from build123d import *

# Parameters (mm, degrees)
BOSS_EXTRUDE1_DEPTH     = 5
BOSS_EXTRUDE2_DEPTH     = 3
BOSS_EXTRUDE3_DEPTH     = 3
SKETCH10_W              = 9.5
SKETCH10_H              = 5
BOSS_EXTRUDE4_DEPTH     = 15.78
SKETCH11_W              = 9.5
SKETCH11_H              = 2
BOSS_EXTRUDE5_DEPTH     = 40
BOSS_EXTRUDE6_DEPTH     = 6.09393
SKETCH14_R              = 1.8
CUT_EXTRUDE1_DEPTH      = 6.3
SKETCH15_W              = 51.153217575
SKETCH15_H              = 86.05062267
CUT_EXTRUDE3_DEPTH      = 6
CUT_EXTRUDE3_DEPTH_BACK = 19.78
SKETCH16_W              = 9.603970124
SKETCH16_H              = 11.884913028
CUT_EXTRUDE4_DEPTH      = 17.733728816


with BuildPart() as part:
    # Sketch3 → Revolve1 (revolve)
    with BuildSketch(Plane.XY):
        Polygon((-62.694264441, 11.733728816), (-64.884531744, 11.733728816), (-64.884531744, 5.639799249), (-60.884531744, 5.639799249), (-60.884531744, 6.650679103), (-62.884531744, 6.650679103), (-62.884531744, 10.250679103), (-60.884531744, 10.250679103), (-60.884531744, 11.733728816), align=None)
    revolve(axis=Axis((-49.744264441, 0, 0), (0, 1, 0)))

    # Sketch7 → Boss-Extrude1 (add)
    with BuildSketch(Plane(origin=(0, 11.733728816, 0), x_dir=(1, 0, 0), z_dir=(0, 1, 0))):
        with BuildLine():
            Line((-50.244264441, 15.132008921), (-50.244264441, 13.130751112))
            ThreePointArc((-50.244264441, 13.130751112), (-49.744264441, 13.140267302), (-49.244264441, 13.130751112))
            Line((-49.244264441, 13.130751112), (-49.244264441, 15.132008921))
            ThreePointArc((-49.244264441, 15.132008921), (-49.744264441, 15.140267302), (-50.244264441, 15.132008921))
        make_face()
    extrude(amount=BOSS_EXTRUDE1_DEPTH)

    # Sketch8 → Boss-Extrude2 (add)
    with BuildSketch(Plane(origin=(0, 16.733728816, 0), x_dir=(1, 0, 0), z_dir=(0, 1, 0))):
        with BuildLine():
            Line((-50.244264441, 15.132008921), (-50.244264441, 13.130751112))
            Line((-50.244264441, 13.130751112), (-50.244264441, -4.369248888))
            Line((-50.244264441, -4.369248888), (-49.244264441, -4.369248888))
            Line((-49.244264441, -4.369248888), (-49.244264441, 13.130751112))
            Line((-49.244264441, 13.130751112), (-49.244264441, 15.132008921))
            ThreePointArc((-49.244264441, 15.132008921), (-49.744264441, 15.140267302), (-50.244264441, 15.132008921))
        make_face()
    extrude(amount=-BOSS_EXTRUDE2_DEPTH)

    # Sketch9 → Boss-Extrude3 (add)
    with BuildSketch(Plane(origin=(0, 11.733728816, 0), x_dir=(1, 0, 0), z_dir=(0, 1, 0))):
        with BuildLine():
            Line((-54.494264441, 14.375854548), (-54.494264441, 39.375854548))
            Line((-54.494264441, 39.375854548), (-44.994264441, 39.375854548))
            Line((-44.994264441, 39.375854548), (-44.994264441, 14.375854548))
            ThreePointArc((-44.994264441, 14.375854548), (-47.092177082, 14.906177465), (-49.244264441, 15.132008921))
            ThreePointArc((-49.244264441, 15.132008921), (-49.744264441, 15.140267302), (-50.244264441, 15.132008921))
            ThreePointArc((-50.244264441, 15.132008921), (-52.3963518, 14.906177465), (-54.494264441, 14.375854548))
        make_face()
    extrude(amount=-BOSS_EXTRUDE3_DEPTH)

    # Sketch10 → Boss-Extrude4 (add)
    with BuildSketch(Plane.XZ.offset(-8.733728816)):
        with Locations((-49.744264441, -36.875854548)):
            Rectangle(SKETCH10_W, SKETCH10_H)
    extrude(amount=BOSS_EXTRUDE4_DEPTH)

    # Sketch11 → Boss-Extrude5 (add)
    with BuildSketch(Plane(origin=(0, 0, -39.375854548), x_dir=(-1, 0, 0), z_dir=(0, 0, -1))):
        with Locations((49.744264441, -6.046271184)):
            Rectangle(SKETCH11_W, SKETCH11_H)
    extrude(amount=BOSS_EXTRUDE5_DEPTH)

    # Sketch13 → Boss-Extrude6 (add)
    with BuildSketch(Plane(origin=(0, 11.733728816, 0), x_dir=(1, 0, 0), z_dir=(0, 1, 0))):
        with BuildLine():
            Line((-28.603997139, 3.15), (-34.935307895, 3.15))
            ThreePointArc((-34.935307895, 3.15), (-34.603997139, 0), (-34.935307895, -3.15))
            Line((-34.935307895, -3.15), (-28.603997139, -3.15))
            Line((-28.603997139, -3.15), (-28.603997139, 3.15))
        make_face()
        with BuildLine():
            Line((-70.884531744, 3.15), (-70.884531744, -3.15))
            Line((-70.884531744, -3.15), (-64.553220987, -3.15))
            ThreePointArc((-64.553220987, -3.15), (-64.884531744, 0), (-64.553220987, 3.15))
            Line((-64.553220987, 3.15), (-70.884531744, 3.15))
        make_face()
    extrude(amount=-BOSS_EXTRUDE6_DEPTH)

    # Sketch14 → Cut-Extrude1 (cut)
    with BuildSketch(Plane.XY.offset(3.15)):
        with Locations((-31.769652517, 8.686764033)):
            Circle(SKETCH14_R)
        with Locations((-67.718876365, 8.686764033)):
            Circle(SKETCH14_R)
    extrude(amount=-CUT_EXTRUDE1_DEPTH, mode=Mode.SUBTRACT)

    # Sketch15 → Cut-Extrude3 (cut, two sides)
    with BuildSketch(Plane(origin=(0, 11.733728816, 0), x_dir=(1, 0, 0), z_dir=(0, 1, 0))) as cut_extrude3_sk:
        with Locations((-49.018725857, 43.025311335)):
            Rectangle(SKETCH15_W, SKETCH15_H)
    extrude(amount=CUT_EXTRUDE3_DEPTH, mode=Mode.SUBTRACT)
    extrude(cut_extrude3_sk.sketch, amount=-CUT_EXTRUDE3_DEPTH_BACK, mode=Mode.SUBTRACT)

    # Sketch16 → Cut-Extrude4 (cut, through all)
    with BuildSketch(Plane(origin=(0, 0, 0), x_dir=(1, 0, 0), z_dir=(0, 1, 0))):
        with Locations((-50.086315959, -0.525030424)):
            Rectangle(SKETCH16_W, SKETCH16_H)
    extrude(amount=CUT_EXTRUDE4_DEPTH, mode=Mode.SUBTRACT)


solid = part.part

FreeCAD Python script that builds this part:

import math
import FreeCAD as App
import Part
import Sketcher
Q = App.Units.Quantity


def add_polygon(sketch, points):
    """Adds a closed chain of lines whose ends are joined by coincident constraints."""
    first, n = sketch.GeometryCount, len(points)
    for a, b in zip(points, points[1:] + points[:1]):
        sketch.addGeometry(Part.LineSegment(App.Vector(*a, 0), App.Vector(*b, 0)), False)
    for i in range(n):
        sketch.addConstraint(Sketcher.Constraint("Coincident", first + i, 2, first + (i + 1) % n, 1))

doc = App.newDocument("Part")
body = doc.addObject("PartDesign::Body", "Body")
body.AllowCompound = True

# Sketch on XY plane
sketch1 = body.newObject("Sketcher::SketchObject", "Sketch")
sketch1.AttachmentSupport = (doc.getObject("XY_Plane"), [""])
sketch1.MapMode = "FlatFace"
add_polygon(sketch1, [(-64.9, 11.7), (-64.9, 5.6), (-60.9, 5.6), (-60.9, 6.7), (-62.9, 6.7), (-62.9, 10.3), (-60.9, 10.3), (-60.9, 11.7)])  # lines 0-7
sketch1.addGeometry(Part.LineSegment(App.Vector(-49.7, 5.6, 0), App.Vector(-49.7, 11.7, 0)), True)  # axis
sketch1.addConstraint([
    Sketcher.Constraint("Vertical", 0),
    Sketcher.Constraint("Horizontal", 1),
    Sketcher.Constraint("Vertical", 2),
    Sketcher.Constraint("Horizontal", 3),
    Sketcher.Constraint("Vertical", 4),
    Sketcher.Constraint("Horizontal", 5),
    Sketcher.Constraint("Vertical", 6),
    Sketcher.Constraint("Horizontal", 7),
    Sketcher.Constraint("Vertical", 8),
    Sketcher.Constraint("Horizontal", 1, 2, 8, 1),
    Sketcher.Constraint("Horizontal", 7, 2, 8, 2),
    Sketcher.Constraint("Vertical", 2, 2, 5, 2),
    Sketcher.Constraint("DistanceX", 1, 1, 1, 2, Q("4 mm")),
    Sketcher.Constraint("DistanceX", 3, 2, 3, 1, Q("2 mm")),
    Sketcher.Constraint("DistanceY", 4, 1, 4, 2, Q("3.6 mm")),
    Sketcher.Constraint("DistanceY", 0, 2, 0, 1, Q("6.09393 mm")),
    Sketcher.Constraint("DistanceY", 2, 1, 2, 2, Q("1.01088 mm")),
    Sketcher.Constraint("DistanceY", -1, 1, 0, 2, Q("5.639799 mm")),
    Sketcher.Constraint("DistanceX", 0, 2, -1, 1, Q("64.884532 mm")),
    Sketcher.Constraint("DistanceX", 8, 1, -1, 1, Q("49.744264 mm")),
])
revolution = body.newObject("PartDesign::Revolution", "Revolution")
revolution.Profile = sketch1
revolution.ReferenceAxis = (sketch1, ["Axis0"])
revolution.Angle = 360

# Sketch on XZ plane
sketch2 = body.newObject("Sketcher::SketchObject", "Sketch001")
sketch2.AttachmentSupport = (doc.getObject("XZ_Plane"), [""])
sketch2.MapMode = "FlatFace"
sketch2.AttachmentOffset = App.Placement(App.Vector(0, 0, -11.733729), App.Rotation())
sketch2.addGeometry([
    Part.LineSegment(App.Vector(-50.2, -15.1, 0), App.Vector(-50.2, -13.1, 0)),
    Part.ArcOfCircle(Part.Circle(App.Vector(-49.7, 0, 0), App.Vector(0, 0, 1), 13.1), math.radians(-92.18), math.radians(-87.82)),
    Part.LineSegment(App.Vector(-49.2, -13.1, 0), App.Vector(-49.2, -15.1, 0)),
    Part.ArcOfCircle(Part.Circle(App.Vector(-49.7, 0, 0), App.Vector(0, 0, 1), 15.1), math.radians(-91.89), math.radians(-88.11)),
], False)
sketch2.addConstraint([
    Sketcher.Constraint("Coincident", 0, 2, 1, 1),
    Sketcher.Constraint("Coincident", 1, 2, 2, 1),
    Sketcher.Constraint("Coincident", 2, 2, 3, 2),
    Sketcher.Constraint("Coincident", 3, 1, 0, 1),
    Sketcher.Constraint("Vertical", 0),
    Sketcher.Constraint("Vertical", 2),
    Sketcher.Constraint("Coincident", 3, 3, 1, 3),
    Sketcher.Constraint("PointOnObject", 1, 3, -1),
    Sketcher.Constraint("Horizontal", 0, 2, 1, 2),
    Sketcher.Constraint("DistanceX", 0, 2, 1, 2, Q("1 mm")),
    Sketcher.Constraint("Radius", 1, Q("13.140267 mm")),
    Sketcher.Constraint("Radius", 3, Q("15.140268 mm")),
    Sketcher.Constraint("DistanceX", 1, 3, -1, 1, Q("49.744264 mm")),
])
pad1 = body.newObject("PartDesign::Pad", "Pad")
pad1.Profile = sketch2
pad1.Length = 5
pad1.Reversed = True

# Sketch on XZ plane
sketch3 = body.newObject("Sketcher::SketchObject", "Sketch002")
sketch3.AttachmentSupport = (doc.getObject("XZ_Plane"), [""])
sketch3.MapMode = "FlatFace"
sketch3.AttachmentOffset = App.Placement(App.Vector(0, 0, -16.733729), App.Rotation())
sketch3.addGeometry([
    Part.LineSegment(App.Vector(-50.2, -15.1, 0), App.Vector(-50.2, 4.4, 0)),
    Part.LineSegment(App.Vector(-50.2, 4.4, 0), App.Vector(-49.2, 4.4, 0)),
    Part.LineSegment(App.Vector(-49.2, 4.4, 0), App.Vector(-49.2, -15.1, 0)),
    Part.ArcOfCircle(Part.Circle(App.Vector(-49.7, 0, 0), App.Vector(0, 0, 1), 15.1), math.radians(-91.89), math.radians(-88.11)),
], False)
sketch3.addConstraint([
    Sketcher.Constraint("Coincident", 0, 2, 1, 1),
    Sketcher.Constraint("Coincident", 1, 2, 2, 1),
    Sketcher.Constraint("Coincident", 2, 2, 3, 2),
    Sketcher.Constraint("Coincident", 3, 1, 0, 1),
    Sketcher.Constraint("Vertical", 0),
    Sketcher.Constraint("Horizontal", 1),
    Sketcher.Constraint("Vertical", 2),
    Sketcher.Constraint("PointOnObject", 3, 3, -1),
    Sketcher.Constraint("Horizontal", 2, 2, 3, 1),
    Sketcher.Constraint("DistanceX", 1, 1, 1, 2, Q("1 mm")),
    Sketcher.Constraint("Radius", 3, Q("15.140268 mm")),
    Sketcher.Constraint("DistanceY", 0, 1, 0, 2, Q("19.501258 mm")),
    Sketcher.Constraint("DistanceX", 3, 3, -1, 1, Q("49.744264 mm")),
])
pad2 = body.newObject("PartDesign::Pad", "Pad001")
pad2.Profile = sketch3
pad2.Length = 3

# Sketch on XZ plane
sketch4 = body.newObject("Sketcher::SketchObject", "Sketch003")
sketch4.AttachmentSupport = (doc.getObject("XZ_Plane"), [""])
sketch4.MapMode = "FlatFace"
sketch4.AttachmentOffset = App.Placement(App.Vector(0, 0, -11.733729), App.Rotation())
sketch4.addGeometry([
    Part.LineSegment(App.Vector(-54.5, -39.4, 0), App.Vector(-54.5, -14.4, 0)),  # 0
    Part.ArcOfCircle(Part.Circle(App.Vector(-49.7, 0, 0), App.Vector(0, 0, 1), 15.1), math.radians(-108.28), math.radians(-91.89)),  # 1
    Part.ArcOfCircle(Part.Circle(App.Vector(-49.7, 0, 0), App.Vector(0, 0, 1), 15.1), math.radians(-91.89), math.radians(-88.11)),  # 2
    Part.ArcOfCircle(Part.Circle(App.Vector(-49.7, 0, 0), App.Vector(0, 0, 1), 15.1), math.radians(-88.11), math.radians(-71.72)),  # 3
    Part.LineSegment(App.Vector(-45, -14.4, 0), App.Vector(-45, -39.4, 0)),  # 4
    Part.LineSegment(App.Vector(-45, -39.4, 0), App.Vector(-54.5, -39.4, 0)),  # 5
], False)
sketch4.addConstraint([
    Sketcher.Constraint("Coincident", 0, 2, 1, 1),
    Sketcher.Constraint("Tangent", 1, 2, 2, 1),
    Sketcher.Constraint("Tangent", 2, 2, 3, 1),
    Sketcher.Constraint("Coincident", 3, 2, 4, 1),
    Sketcher.Constraint("Coincident", 4, 2, 5, 1),
    Sketcher.Constraint("Coincident", 5, 2, 0, 1),
    Sketcher.Constraint("Vertical", 0),
    Sketcher.Constraint("Vertical", 4),
    Sketcher.Constraint("Horizontal", 5),
    Sketcher.Constraint("Coincident", 3, 3, 1, 3),
    Sketcher.Constraint("PointOnObject", 1, 3, -1),
    Sketcher.Constraint("Horizontal", 1, 2, 2, 2),
    Sketcher.Constraint("Horizontal", 0, 2, 3, 2),
    Sketcher.Constraint("DistanceY", 0, 1, 0, 2, Q("25 mm")),
    Sketcher.Constraint("DistanceX", 5, 2, 5, 1, Q("9.5 mm")),
    Sketcher.Constraint("DistanceX", 1, 2, 2, 2, Q("1 mm")),
    Sketcher.Constraint("Radius", 1, Q("15.140267 mm")),
    Sketcher.Constraint("DistanceX", 1, 3, -1, 1, Q("49.744264 mm")),
])
pad3 = body.newObject("PartDesign::Pad", "Pad002")
pad3.Profile = sketch4
pad3.Length = 3

# Sketch on XZ plane
sketch5 = body.newObject("Sketcher::SketchObject", "Sketch004")
sketch5.AttachmentSupport = (doc.getObject("XZ_Plane"), [""])
sketch5.MapMode = "FlatFace"
sketch5.AttachmentOffset = App.Placement(App.Vector(0, 0, -8.733729), App.Rotation())
add_polygon(sketch5, [(-54, -34), (-54, -39), (-45, -39), (-45, -34)])  # lines 0-3
sketch5.addConstraint([
    Sketcher.Constraint("Vertical", 0),
    Sketcher.Constraint("Horizontal", 1),
    Sketcher.Constraint("Vertical", 2),
    Sketcher.Constraint("Horizontal", 3),
    Sketcher.Constraint("DistanceY", 0, 2, 0, 1, Q("5 mm")),
    Sketcher.Constraint("DistanceX", 1, 1, 1, 2, Q("9.5 mm")),
    Sketcher.Constraint("DistanceX", 0, 2, -1, 1, Q("54.494264 mm")),
    Sketcher.Constraint("DistanceY", 0, 2, -1, 1, Q("39.375855 mm")),
])
pad4 = body.newObject("PartDesign::Pad", "Pad003")
pad4.Profile = sketch5
pad4.Length = 15.78

# Sketch on XY plane
sketch6 = body.newObject("Sketcher::SketchObject", "Sketch005")
sketch6.AttachmentSupport = (doc.getObject("XY_Plane"), [""])
sketch6.MapMode = "FlatFace"
sketch6.AttachmentOffset = App.Placement(App.Vector(0, 0, -39.375855), App.Rotation())
add_polygon(sketch6, [(-45, -5), (-45, -7), (-54.5, -7), (-54.5, -5)])  # lines 0-3
sketch6.addConstraint([
    Sketcher.Constraint("Vertical", 0),
    Sketcher.Constraint("Horizontal", 1),
    Sketcher.Constraint("Vertical", 2),
    Sketcher.Constraint("Horizontal", 3),
    Sketcher.Constraint("DistanceY", 0, 2, 0, 1, Q("2 mm")),
    Sketcher.Constraint("DistanceX", 1, 2, 1, 1, Q("9.5 mm")),
    Sketcher.Constraint("DistanceY", 0, 2, -1, 1, Q("7.046271 mm")),
    Sketcher.Constraint("DistanceX", 0, 2, -1, 1, Q("44.994264 mm")),
])
pad5 = body.newObject("PartDesign::Pad", "Pad004")
pad5.Profile = sketch6
pad5.Length = 40
pad5.Reversed = True

# Sketch on XZ plane
sketch7 = body.newObject("Sketcher::SketchObject", "Sketch006")
sketch7.AttachmentSupport = (doc.getObject("XZ_Plane"), [""])
sketch7.MapMode = "FlatFace"
sketch7.AttachmentOffset = App.Placement(App.Vector(0, 0, -11.733729), App.Rotation())
sketch7.addGeometry([
    Part.LineSegment(App.Vector(-29, -3, 0), App.Vector(-35, -3, 0)),  # 0
    Part.ArcOfCircle(Part.Circle(App.Vector(-50, 0, 0), App.Vector(0, 0, 1), 15), math.radians(-12), math.radians(12)),  # 1
    Part.LineSegment(App.Vector(-35, 3, 0), App.Vector(-29, 3, 0)),  # 2
    Part.LineSegment(App.Vector(-29, 3, 0), App.Vector(-29, -3, 0)),  # 3
    Part.LineSegment(App.Vector(-71, -3, 0), App.Vector(-71, 3, 0)),  # 4
    Part.LineSegment(App.Vector(-71, 3, 0), App.Vector(-65, 3, 0)),  # 5
    Part.ArcOfCircle(Part.Circle(App.Vector(-50, 0, 0), App.Vector(0, 0, 1), 15), math.radians(168), math.radians(192)),  # 6
    Part.LineSegment(App.Vector(-65, -3, 0), App.Vector(-71, -3, 0)),  # 7
], False)
sketch7.addConstraint([
    Sketcher.Constraint("Coincident", 0, 2, 1, 1),
    Sketcher.Constraint("Coincident", 1, 2, 2, 1),
    Sketcher.Constraint("Coincident", 2, 2, 3, 1),
    Sketcher.Constraint("Coincident", 3, 2, 0, 1),
    Sketcher.Constraint("Coincident", 4, 2, 5, 1),
    Sketcher.Constraint("Coincident", 5, 2, 6, 1),
    Sketcher.Constraint("Coincident", 6, 2, 7, 1),
    Sketcher.Constraint("Coincident", 7, 2, 4, 1),
    Sketcher.Constraint("Horizontal", 0),
    Sketcher.Constraint("Horizontal", 2),
    Sketcher.Constraint("Vertical", 3),
    Sketcher.Constraint("Vertical", 4),
    Sketcher.Constraint("Horizontal", 5),
    Sketcher.Constraint("Horizontal", 7),
    Sketcher.Constraint("Coincident", 6, 3, 1, 3),
    Sketcher.Constraint("Equal", 1, 6),
    Sketcher.Constraint("Symmetric", 0, 2, 1, 2, -1),
    Sketcher.Constraint("Horizontal", 2, 2, 4, 2),
    Sketcher.Constraint("Horizontal", 3, 2, 6, 2),
    Sketcher.Constraint("Equal", 2, 5),
    Sketcher.Constraint("DistanceY", 3, 2, 3, 1, Q("6.3 mm")),
    Sketcher.Constraint("Radius", 1, Q("15.140267 mm")),
    Sketcher.Constraint("DistanceX", 0, 2, 0, 1, Q("6.331311 mm")),
    Sketcher.Constraint("DistanceX", 4, 2, -1, 1, Q("70.884532 mm")),
])
pad6 = body.newObject("PartDesign::Pad", "Pad005")
pad6.Profile = sketch7
pad6.Length = 6.09393

# Sketch on XY plane
sketch8 = body.newObject("Sketcher::SketchObject", "Sketch007")
sketch8.AttachmentSupport = (doc.getObject("XY_Plane"), [""])
sketch8.MapMode = "FlatFace"
sketch8.AttachmentOffset = App.Placement(App.Vector(0, 0, 3.15), App.Rotation())
sketch8.addGeometry([
    Part.Circle(App.Vector(-31.8, 8.7, 0), App.Vector(0, 0, 1), 1.8),
    Part.Circle(App.Vector(-67.7, 8.7, 0), App.Vector(0, 0, 1), 1.8),
], False)
sketch8.addConstraint([
    Sketcher.Constraint("Equal", 0, 1),
    Sketcher.Constraint("Horizontal", 0, 3, 1, 3),
    Sketcher.Constraint("Diameter", 0, Q("3.6 mm")),
    Sketcher.Constraint("DistanceX", 0, 3, -1, 1, Q("31.769653 mm")),
    Sketcher.Constraint("DistanceY", -1, 1, 0, 3, Q("8.686764 mm")),
    Sketcher.Constraint("DistanceX", 1, 3, -1, 1, Q("67.718876 mm")),
])
pocket1 = body.newObject("PartDesign::Pocket", "Pocket")
pocket1.Profile = sketch8
pocket1.Length = 6.3

# Sketch on XZ plane
sketch9 = body.newObject("Sketcher::SketchObject", "Sketch008")
sketch9.AttachmentSupport = (doc.getObject("XZ_Plane"), [""])
sketch9.MapMode = "FlatFace"
sketch9.AttachmentOffset = App.Placement(App.Vector(0, 0, -11.733729), App.Rotation())
add_polygon(sketch9, [(-75, -86), (-75, 0), (-23, 0), (-23, -86)])  # lines 0-3
sketch9.addConstraint([
    Sketcher.Constraint("Vertical", 0),
    Sketcher.Constraint("Horizontal", 1),
    Sketcher.Constraint("Vertical", 2),
    Sketcher.Constraint("Horizontal", 3),
    Sketcher.Constraint("PointOnObject", 0, 2, -1),
    Sketcher.Constraint("DistanceX", 1, 1, 1, 2, Q("51.153218 mm")),
    Sketcher.Constraint("DistanceY", 0, 1, 0, 2, Q("86.050623 mm")),
    Sketcher.Constraint("DistanceX", 0, 2, -1, 1, Q("74.595335 mm")),
])
pocket2 = body.newObject("PartDesign::Pocket", "Pocket001")
pocket2.Profile = sketch9
pocket2.Type = "ThroughAll"
pocket2.Midplane = True

# Sketch on XZ plane
sketch10 = body.newObject("Sketcher::SketchObject", "Sketch009")
sketch10.AttachmentSupport = (doc.getObject("XZ_Plane"), [""])
sketch10.MapMode = "FlatFace"
add_polygon(sketch10, [(-55, -5), (-55, 6), (-45, 6), (-45, -5)])  # lines 0-3
sketch10.addConstraint([
    Sketcher.Constraint("Vertical", 0),
    Sketcher.Constraint("Horizontal", 1),
    Sketcher.Constraint("Vertical", 2),
    Sketcher.Constraint("Horizontal", 3),
    Sketcher.Constraint("DistanceX", 1, 1, 1, 2, Q("9.60397 mm")),
    Sketcher.Constraint("DistanceX", 0, 2, -1, 1, Q("54.888301 mm")),
    Sketcher.Constraint("DistanceY", 0, 1, 0, 2, Q("11.884913 mm")),
    Sketcher.Constraint("DistanceY", -1, 1, 0, 2, Q("6.467487 mm")),
])
pocket3 = body.newObject("PartDesign::Pocket", "Pocket002")
pocket3.Profile = sketch10
pocket3.Type = "ThroughAll"

doc.recompute()
